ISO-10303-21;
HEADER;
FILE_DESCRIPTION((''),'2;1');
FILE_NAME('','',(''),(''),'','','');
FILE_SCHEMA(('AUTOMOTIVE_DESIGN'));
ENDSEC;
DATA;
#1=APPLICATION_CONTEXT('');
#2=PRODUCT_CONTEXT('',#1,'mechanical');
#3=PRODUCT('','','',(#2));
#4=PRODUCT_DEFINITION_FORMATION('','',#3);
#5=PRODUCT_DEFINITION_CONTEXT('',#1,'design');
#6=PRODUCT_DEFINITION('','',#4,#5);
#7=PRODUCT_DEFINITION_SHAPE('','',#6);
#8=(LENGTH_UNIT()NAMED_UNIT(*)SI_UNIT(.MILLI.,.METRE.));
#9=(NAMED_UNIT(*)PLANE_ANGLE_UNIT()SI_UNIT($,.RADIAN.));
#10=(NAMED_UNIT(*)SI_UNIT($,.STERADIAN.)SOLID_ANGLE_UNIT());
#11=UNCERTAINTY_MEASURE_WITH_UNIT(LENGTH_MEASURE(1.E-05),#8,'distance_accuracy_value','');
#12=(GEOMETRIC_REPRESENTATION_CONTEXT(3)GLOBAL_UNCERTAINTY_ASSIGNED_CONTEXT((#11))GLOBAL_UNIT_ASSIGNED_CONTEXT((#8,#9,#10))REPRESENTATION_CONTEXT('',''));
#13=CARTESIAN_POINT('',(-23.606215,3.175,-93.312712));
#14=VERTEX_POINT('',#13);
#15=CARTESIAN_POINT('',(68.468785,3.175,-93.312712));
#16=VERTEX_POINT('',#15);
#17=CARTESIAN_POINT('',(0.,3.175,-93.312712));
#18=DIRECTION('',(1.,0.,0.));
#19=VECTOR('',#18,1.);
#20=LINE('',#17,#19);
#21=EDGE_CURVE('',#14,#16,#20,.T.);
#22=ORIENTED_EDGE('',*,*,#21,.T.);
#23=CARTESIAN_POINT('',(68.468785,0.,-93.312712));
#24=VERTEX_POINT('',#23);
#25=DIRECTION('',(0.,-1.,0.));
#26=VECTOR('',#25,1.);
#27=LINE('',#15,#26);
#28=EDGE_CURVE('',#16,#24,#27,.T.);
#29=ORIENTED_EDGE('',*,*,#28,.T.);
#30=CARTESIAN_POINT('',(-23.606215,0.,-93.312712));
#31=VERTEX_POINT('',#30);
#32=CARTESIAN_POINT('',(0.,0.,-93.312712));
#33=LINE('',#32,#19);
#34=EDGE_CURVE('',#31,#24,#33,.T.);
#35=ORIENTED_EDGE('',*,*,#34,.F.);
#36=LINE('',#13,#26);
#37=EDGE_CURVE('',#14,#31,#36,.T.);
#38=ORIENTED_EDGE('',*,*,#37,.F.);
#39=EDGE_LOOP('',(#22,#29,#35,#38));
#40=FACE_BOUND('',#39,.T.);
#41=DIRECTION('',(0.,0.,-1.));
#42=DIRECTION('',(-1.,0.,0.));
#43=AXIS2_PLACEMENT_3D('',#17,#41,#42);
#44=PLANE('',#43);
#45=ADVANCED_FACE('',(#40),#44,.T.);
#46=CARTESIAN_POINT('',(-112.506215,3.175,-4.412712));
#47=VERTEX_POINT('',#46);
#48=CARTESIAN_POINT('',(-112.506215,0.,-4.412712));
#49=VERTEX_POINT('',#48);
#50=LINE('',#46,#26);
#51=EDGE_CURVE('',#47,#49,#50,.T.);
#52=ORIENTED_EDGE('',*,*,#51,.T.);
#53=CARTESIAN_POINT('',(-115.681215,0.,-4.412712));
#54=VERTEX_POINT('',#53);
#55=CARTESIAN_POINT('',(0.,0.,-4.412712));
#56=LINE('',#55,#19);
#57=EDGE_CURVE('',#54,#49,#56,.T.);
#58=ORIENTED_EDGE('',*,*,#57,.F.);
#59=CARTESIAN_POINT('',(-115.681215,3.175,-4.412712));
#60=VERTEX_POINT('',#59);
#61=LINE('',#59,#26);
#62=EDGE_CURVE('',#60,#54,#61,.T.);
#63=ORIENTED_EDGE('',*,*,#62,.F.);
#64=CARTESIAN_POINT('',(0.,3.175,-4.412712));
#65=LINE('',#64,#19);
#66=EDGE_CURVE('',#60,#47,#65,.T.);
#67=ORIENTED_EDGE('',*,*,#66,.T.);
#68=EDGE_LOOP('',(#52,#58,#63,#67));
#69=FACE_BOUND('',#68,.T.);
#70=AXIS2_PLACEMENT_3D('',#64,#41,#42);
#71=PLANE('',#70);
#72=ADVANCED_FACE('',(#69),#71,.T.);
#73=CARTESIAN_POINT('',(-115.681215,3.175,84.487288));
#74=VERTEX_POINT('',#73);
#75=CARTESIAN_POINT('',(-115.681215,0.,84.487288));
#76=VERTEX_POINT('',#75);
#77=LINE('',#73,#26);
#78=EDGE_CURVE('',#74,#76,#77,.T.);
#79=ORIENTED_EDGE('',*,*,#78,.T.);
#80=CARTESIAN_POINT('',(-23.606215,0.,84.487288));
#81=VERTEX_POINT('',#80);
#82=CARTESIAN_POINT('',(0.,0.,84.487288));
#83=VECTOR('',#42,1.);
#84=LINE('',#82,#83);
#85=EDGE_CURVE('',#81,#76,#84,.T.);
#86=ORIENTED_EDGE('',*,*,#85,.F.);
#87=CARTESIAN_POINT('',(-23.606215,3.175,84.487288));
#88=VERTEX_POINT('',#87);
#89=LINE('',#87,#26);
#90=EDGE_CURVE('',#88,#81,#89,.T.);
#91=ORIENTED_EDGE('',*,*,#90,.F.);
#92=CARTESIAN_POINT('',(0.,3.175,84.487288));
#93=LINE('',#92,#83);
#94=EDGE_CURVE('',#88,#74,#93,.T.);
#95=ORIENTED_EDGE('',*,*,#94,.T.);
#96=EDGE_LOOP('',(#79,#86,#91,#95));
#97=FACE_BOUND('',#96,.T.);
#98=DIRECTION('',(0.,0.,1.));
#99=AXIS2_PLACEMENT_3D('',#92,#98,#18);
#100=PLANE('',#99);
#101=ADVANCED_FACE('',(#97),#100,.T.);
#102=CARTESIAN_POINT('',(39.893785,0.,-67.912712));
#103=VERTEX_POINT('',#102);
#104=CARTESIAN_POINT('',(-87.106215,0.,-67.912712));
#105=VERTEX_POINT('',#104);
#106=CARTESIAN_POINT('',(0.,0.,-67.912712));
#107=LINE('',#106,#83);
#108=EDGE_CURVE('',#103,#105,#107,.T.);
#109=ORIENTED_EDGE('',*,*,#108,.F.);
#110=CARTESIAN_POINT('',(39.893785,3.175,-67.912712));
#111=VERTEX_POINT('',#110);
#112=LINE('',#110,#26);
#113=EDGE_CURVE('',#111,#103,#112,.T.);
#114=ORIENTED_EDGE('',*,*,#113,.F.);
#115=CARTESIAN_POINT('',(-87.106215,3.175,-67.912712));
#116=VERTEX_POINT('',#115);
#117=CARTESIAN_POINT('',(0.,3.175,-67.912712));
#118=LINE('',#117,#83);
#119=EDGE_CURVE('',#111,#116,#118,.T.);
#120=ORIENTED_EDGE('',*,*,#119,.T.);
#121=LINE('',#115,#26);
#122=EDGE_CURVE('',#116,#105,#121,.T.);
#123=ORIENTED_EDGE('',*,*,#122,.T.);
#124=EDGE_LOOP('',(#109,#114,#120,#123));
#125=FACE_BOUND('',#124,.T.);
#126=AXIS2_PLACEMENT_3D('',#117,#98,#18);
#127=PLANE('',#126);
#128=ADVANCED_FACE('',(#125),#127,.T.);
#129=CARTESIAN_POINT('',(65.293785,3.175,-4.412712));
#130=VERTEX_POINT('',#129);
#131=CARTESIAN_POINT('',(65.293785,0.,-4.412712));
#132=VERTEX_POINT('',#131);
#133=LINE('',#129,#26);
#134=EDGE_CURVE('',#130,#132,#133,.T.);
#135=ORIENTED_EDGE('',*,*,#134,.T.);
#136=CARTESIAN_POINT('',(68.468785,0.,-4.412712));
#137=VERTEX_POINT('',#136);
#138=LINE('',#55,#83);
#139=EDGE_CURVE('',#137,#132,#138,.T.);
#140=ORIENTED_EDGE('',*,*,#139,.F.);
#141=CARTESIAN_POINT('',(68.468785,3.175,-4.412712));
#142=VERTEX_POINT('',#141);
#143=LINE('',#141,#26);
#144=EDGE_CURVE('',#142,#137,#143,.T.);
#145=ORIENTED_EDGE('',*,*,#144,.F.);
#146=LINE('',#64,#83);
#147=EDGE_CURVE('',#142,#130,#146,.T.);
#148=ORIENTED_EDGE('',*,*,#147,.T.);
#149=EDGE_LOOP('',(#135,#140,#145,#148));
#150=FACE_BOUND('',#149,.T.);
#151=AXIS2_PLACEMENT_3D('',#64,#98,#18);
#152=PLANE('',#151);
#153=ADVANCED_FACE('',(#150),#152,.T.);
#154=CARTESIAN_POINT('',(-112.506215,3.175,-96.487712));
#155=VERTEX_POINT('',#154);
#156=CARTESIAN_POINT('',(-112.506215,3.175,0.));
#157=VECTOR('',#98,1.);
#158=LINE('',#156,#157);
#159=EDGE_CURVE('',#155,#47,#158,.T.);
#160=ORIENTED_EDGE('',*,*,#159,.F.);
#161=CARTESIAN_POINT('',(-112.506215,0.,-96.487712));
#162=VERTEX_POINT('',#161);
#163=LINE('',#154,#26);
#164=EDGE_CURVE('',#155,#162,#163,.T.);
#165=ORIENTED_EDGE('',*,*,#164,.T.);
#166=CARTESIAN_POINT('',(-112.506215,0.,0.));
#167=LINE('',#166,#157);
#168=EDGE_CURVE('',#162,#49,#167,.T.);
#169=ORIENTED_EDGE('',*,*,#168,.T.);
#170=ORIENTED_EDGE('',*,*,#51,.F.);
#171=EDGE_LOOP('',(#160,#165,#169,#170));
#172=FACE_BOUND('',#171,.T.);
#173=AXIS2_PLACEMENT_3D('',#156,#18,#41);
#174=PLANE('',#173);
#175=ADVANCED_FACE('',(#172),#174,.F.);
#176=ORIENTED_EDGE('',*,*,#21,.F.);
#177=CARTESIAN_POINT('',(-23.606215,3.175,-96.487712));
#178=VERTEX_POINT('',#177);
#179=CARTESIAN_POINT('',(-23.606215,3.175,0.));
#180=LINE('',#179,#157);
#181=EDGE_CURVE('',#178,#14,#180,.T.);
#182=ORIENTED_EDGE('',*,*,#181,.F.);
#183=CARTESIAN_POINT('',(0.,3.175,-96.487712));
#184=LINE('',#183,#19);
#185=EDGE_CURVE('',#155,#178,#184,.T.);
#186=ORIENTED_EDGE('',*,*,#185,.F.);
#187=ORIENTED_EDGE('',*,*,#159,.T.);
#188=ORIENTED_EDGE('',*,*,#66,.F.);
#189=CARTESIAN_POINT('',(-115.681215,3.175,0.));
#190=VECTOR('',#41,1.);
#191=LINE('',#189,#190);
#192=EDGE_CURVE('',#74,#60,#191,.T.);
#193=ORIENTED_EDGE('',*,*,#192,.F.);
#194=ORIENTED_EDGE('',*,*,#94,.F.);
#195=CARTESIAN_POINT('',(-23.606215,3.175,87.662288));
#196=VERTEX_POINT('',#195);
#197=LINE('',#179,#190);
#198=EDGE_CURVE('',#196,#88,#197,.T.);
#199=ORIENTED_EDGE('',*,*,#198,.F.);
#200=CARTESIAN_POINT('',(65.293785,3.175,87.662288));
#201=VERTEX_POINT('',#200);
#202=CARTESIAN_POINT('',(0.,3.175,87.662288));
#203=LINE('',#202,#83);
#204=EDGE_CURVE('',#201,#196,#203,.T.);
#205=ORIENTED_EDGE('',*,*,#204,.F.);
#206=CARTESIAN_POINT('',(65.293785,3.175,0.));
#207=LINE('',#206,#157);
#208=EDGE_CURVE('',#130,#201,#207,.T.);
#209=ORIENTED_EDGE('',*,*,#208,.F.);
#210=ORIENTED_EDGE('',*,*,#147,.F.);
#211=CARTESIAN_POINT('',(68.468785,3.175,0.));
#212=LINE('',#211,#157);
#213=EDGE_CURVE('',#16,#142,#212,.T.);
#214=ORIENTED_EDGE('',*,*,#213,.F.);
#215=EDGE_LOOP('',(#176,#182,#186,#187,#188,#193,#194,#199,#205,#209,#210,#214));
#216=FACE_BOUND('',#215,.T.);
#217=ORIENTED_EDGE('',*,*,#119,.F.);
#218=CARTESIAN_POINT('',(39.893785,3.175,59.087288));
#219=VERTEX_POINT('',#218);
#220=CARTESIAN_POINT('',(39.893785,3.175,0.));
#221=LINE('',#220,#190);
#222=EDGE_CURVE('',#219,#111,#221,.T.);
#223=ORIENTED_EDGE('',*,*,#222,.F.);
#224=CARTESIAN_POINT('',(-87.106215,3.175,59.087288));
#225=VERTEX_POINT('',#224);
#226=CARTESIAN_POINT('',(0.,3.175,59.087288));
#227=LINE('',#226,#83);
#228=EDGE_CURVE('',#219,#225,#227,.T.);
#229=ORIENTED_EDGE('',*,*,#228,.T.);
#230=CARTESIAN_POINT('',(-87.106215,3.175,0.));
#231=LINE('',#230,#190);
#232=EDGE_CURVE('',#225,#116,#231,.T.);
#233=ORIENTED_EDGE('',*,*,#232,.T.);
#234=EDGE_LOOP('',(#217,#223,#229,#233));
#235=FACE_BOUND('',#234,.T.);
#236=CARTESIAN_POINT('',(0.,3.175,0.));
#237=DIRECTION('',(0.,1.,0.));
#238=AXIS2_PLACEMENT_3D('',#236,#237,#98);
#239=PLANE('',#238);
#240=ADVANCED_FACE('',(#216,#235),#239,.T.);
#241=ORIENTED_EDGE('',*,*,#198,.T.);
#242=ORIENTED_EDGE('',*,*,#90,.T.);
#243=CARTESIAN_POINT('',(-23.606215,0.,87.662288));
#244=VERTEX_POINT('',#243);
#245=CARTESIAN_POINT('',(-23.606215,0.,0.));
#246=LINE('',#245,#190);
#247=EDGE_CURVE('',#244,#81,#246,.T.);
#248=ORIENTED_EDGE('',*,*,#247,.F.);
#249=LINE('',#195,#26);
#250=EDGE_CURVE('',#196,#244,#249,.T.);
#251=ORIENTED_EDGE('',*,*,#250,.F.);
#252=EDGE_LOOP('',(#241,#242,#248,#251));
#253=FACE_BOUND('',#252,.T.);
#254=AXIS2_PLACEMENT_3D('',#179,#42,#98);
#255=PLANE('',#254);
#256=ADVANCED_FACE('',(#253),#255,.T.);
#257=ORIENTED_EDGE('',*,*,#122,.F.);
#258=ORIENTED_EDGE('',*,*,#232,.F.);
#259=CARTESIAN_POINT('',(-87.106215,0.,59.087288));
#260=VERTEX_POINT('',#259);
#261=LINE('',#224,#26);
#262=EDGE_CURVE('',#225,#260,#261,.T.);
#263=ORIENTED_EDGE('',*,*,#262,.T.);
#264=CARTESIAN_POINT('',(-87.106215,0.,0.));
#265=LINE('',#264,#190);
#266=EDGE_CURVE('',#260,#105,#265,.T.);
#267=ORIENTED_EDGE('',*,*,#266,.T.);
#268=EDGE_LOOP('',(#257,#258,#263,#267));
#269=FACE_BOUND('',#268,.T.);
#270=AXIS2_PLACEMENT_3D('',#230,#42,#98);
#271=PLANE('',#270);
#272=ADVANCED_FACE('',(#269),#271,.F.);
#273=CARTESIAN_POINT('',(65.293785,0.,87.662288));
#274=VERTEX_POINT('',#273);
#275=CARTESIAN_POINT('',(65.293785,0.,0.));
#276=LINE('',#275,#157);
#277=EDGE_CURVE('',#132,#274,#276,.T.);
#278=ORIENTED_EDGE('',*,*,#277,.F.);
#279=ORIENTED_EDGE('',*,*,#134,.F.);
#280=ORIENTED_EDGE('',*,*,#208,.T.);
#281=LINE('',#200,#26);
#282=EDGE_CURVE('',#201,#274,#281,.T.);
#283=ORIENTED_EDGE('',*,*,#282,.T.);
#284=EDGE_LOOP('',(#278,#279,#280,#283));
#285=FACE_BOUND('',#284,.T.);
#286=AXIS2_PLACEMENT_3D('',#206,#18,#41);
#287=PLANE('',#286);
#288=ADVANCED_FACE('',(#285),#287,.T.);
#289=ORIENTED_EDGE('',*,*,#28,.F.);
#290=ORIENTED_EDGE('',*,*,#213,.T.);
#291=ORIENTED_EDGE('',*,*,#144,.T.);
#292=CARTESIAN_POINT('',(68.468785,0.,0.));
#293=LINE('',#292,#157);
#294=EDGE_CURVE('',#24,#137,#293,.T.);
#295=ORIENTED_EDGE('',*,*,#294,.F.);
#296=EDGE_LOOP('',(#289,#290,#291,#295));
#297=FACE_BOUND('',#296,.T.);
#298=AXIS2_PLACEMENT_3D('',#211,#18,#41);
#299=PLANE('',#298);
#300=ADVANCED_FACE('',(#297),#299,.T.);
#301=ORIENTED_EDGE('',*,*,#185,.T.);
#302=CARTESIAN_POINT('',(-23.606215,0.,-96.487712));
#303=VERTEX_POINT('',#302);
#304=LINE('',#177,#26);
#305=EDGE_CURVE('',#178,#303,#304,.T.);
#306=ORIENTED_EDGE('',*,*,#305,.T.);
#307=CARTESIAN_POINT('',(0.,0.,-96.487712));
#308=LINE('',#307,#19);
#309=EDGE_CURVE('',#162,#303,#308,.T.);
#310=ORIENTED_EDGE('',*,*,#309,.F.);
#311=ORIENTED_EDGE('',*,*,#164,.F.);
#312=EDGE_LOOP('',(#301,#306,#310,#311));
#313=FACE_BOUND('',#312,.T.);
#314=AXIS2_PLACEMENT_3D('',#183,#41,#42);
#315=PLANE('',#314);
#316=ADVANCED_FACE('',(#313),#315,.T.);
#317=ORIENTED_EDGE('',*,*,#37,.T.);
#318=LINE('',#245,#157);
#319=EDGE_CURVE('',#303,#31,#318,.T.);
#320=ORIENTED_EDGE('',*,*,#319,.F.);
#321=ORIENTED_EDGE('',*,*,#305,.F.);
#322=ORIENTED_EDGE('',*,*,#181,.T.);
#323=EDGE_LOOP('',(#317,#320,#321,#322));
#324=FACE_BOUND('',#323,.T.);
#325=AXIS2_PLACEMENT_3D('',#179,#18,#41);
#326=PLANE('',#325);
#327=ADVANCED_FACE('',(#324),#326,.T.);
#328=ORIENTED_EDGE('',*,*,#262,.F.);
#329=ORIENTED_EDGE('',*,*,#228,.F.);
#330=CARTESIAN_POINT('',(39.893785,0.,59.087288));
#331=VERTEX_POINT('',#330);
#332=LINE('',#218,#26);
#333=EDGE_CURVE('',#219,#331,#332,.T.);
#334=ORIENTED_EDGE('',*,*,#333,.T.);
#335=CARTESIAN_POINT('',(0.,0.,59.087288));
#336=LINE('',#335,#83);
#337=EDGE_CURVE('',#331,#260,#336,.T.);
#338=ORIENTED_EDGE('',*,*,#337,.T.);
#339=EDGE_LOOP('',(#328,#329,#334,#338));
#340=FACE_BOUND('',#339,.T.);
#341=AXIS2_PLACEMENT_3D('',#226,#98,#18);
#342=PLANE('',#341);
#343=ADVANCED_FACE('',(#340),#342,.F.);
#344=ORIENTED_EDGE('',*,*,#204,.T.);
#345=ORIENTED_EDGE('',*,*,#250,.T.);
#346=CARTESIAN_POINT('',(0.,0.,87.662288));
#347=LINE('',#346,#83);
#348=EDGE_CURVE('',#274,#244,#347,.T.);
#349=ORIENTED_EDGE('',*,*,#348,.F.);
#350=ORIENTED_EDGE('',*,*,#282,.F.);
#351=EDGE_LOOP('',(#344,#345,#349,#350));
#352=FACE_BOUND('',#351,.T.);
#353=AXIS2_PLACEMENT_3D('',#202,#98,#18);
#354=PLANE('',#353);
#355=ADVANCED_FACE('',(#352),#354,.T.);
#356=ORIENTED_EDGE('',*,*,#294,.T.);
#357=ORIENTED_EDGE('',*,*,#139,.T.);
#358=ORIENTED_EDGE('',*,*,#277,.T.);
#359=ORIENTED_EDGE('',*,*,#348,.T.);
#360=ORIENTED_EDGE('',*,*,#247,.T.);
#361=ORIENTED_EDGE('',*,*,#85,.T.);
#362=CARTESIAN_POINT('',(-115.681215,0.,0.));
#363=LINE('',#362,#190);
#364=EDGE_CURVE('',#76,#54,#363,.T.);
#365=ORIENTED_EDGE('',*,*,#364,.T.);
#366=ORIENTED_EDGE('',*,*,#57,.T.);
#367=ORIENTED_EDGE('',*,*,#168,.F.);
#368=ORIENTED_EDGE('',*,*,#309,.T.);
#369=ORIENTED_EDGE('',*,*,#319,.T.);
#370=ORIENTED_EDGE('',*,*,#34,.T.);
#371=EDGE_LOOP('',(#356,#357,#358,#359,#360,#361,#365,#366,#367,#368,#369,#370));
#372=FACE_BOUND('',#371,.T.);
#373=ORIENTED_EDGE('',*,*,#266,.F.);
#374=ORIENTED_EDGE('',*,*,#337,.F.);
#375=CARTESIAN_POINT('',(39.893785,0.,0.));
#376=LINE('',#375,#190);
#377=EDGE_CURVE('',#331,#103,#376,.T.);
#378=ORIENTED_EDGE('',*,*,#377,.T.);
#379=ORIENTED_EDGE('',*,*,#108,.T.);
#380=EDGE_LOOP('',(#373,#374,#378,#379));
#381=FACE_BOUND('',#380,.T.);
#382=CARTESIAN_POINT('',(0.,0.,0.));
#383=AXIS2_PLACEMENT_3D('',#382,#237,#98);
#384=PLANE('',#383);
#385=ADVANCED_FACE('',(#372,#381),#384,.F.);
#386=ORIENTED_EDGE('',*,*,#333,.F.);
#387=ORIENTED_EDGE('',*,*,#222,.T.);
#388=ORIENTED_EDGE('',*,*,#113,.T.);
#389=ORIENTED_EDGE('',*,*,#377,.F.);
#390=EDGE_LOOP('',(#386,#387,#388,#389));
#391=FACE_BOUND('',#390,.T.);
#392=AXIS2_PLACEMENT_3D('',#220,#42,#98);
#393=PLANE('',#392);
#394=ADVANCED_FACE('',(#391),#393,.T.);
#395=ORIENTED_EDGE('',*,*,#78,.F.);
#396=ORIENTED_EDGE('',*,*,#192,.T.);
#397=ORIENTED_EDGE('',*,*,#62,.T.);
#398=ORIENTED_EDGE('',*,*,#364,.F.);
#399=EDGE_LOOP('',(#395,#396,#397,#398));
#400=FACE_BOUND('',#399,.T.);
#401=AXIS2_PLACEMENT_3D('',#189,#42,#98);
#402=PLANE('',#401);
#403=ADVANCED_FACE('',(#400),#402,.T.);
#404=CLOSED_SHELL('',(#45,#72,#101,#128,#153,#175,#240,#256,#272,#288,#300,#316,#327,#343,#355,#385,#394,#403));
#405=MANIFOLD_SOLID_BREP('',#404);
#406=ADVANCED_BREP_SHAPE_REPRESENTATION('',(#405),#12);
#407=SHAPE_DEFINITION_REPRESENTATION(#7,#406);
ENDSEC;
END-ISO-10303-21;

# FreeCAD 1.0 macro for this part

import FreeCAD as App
import Part
import Sketcher
from FreeCAD import Vector
Q = App.Units.Quantity


def add_polygon(sketch, points):
    """Adds a closed chain of lines whose ends are joined by coincident constraints."""
    first, n = sketch.GeometryCount, len(points)
    for a, b in zip(points, points[1:] + points[:1]):
        sketch.addGeometry(Part.LineSegment(App.Vector(*a, 0), App.Vector(*b, 0)), False)
    for i in range(n):
        sketch.addConstraint(Sketcher.Constraint("Coincident", first + i, 2, first + (i + 1) % n, 1))

doc = App.newDocument("Part")
body = doc.addObject("PartDesign::Body", "Body")

# Sketch on XZ plane
sketch1 = body.newObject("Sketcher::SketchObject", "Sketch")
sketch1.AttachmentSupport = (doc.getObject("XZ_Plane"), [""])
sketch1.MapMode = "FlatFace"
add_polygon(sketch1, [(-112.5, -96.5), (-112.5, -4.4), (-115.7, -4.4), (-115.7, 84.5), (-23.6, 84.5), (-23.6, 87.7), (65.3, 87.7), (65.3, -4.4), (68.5, -4.4), (68.5, -93.3), (-23.6, -93.3), (-23.6, -96.5)])  # lines 0-11
add_polygon(sketch1, [(39.9, 59.1), (-87.1, 59.1), (-87.1, -67.9), (39.9, -67.9)])  # lines 12-15
sketch1.addConstraint([
    Sketcher.Constraint("Vertical", 0),
    Sketcher.Constraint("Horizontal", 1),
    Sketcher.Constraint("Vertical", 2),
    Sketcher.Constraint("Horizontal", 3),
    Sketcher.Constraint("Vertical", 4),
    Sketcher.Constraint("Horizontal", 5),
    Sketcher.Constraint("Vertical", 6),
    Sketcher.Constraint("Horizontal", 7),
    Sketcher.Constraint("Vertical", 8),
    Sketcher.Constraint("Horizontal", 9),
    Sketcher.Constraint("Vertical", 10),
    Sketcher.Constraint("Horizontal", 11),
    Sketcher.Constraint("Horizontal", 12),
    Sketcher.Constraint("Vertical", 13),
    Sketcher.Constraint("Horizontal", 14),
    Sketcher.Constraint("Vertical", 15),
    Sketcher.Constraint("Horizontal", 1, 2, 6, 2),
    Sketcher.Constraint("Vertical", 4, 2, 9, 2),
    Sketcher.Constraint("Equal", 1, 7),
    Sketcher.Constraint("Equal", 3, 9),
    Sketcher.Constraint("Equal", 9, 0),
    Sketcher.Constraint("Equal", 11, 2),
    Sketcher.Constraint("Equal", 7, 4),
    Sketcher.Constraint("Equal", 2, 8),
    Sketcher.Constraint("Equal", 14, 13),
    Sketcher.Constraint("DistanceX", 12, 2, 12, 1, Q("5 in")),
    Sketcher.Constraint("DistanceX", 5, 1, 5, 2, Q("3.5 in")),
    Sketcher.Constraint("DistanceY", 12, 2, 2, 2, Q("1 in")),
    Sketcher.Constraint("DistanceX", 0, 2, 12, 2, Q("1 in")),
    Sketcher.Constraint("DistanceX", 1, 2, 1, 1, Q("0.125 in")),
    Sketcher.Constraint("DistanceY", 0, 2, -1, 1, 4.412712),
    Sketcher.Constraint("DistanceX", 0, 2, -1, 1, 112.506215),
])
pad1 = body.newObject("PartDesign::Pad", "Pad")
pad1.Profile = sketch1
pad1.Length = Q("0.125 in")
pad1.Reversed = True

doc.recompute()
